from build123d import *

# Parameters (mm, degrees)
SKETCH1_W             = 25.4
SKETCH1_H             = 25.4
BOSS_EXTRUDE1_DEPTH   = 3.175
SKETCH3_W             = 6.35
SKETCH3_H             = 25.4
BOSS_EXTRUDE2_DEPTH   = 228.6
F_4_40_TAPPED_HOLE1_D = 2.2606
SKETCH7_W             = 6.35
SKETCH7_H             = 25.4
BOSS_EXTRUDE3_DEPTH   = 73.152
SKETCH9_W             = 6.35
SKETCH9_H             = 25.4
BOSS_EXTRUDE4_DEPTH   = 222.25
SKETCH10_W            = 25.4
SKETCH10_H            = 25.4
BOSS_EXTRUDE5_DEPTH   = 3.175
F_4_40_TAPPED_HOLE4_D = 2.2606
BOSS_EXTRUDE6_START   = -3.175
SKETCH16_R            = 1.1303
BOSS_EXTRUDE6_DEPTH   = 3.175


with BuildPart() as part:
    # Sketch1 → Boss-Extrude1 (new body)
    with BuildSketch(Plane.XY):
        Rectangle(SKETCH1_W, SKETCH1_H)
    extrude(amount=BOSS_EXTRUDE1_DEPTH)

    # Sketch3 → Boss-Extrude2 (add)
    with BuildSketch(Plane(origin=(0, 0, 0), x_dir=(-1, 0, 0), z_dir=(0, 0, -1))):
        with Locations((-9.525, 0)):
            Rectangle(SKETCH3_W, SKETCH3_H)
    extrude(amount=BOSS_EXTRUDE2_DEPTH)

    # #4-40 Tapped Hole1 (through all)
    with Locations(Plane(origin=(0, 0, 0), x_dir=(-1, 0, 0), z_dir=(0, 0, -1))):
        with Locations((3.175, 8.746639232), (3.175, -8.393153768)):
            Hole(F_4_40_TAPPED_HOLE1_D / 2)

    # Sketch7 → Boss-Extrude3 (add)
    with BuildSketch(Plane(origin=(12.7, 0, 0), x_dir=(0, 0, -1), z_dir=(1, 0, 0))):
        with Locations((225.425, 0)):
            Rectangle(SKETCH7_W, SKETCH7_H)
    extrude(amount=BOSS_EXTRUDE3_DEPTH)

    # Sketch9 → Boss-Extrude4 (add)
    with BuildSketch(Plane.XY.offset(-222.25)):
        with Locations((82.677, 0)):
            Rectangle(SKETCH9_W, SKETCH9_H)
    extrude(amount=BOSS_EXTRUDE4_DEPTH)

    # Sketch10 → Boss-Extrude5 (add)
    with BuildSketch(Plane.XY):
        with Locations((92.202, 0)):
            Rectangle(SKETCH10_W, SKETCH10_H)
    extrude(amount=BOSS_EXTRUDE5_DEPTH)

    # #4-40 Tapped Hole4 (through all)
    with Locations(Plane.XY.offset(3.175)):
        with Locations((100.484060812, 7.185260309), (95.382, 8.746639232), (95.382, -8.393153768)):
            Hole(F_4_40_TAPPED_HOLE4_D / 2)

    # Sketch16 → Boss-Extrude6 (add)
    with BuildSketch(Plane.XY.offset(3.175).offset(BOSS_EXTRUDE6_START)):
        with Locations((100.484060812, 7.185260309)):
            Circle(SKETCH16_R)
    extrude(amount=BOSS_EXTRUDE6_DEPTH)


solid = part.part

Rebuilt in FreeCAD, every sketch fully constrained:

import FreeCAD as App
import Part
import Sketcher
Q = App.Units.Quantity

doc = App.newDocument("Part")
body = doc.addObject("PartDesign::Body", "Body")

sketch1 = doc.addObject("Sketcher::SketchObject", "Sketch")
body.addObject(sketch1)
sketch1.AttachmentSupport = (doc.XY_Plane, [""])
sketch1.MapMode = "FlatFace"
sketch1.addGeometry([
    Part.LineSegment(App.Vector(-13, 13, 0), App.Vector(-13, -13, 0)),
    Part.LineSegment(App.Vector(-13, -13, 0), App.Vector(13, -13, 0)),
    Part.LineSegment(App.Vector(13, -13, 0), App.Vector(13, 13, 0)),
    Part.LineSegment(App.Vector(13, 13, 0), App.Vector(-13, 13, 0)),
], False)
sketch1.addConstraint([
    Sketcher.Constraint("Coincident", 0, 2, 1, 1),
    Sketcher.Constraint("Coincident", 1, 2, 2, 1),
    Sketcher.Constraint("Coincident", 2, 2, 3, 1),
    Sketcher.Constraint("Coincident", 3, 2, 0, 1),
    Sketcher.Constraint("Vertical", 0),
    Sketcher.Constraint("Horizontal", 1),
    Sketcher.Constraint("Vertical", 2),
    Sketcher.Constraint("Horizontal", 3),
    Sketcher.Constraint("Symmetric", 0, 2, 2, 2, -1, 1),
    Sketcher.Constraint("Equal", 3, 0),
    Sketcher.Constraint("DistanceX", 1, 1, 1, 2, Q("1 in")),
])
pad1 = doc.addObject("PartDesign::Pad", "Pad")
body.addObject(pad1)
pad1.Profile = sketch1
pad1.Length = Q("0.125 in")

sketch2 = doc.addObject("Sketcher::SketchObject", "Sketch001")
body.addObject(sketch2)
sketch2.AttachmentSupport = (doc.XY_Plane, [""])
sketch2.MapMode = "FlatFace"
sketch2.addGeometry([
    Part.LineSegment(App.Vector(13, 13, 0), App.Vector(13, -13, 0)),
    Part.LineSegment(App.Vector(13, -13, 0), App.Vector(6, -13, 0)),
    Part.LineSegment(App.Vector(6, -13, 0), App.Vector(6, 13, 0)),
    Part.LineSegment(App.Vector(6, 13, 0), App.Vector(13, 13, 0)),
], False)
sketch2.addConstraint([
    Sketcher.Constraint("Coincident", 0, 2, 1, 1),
    Sketcher.Constraint("Coincident", 1, 2, 2, 1),
    Sketcher.Constraint("Coincident", 2, 2, 3, 1),
    Sketcher.Constraint("Coincident", 3, 2, 0, 1),
    Sketcher.Constraint("Vertical", 0),
    Sketcher.Constraint("Horizontal", 1),
    Sketcher.Constraint("Vertical", 2),
    Sketcher.Constraint("Horizontal", 3),
    Sketcher.Constraint("DistanceY", 0, 2, 0, 1, Q("1 in")),
    Sketcher.Constraint("DistanceX", 1, 2, 1, 1, Q("0.25 in")),
    Sketcher.Constraint("DistanceX", -1, 1, 0, 2, Q("0.5 in")),
    Sketcher.Constraint("DistanceY", 0, 2, -1, 1, Q("0.5 in")),
])
pad2 = doc.addObject("PartDesign::Pad", "Pad001")
body.addObject(pad2)
pad2.Profile = sketch2
pad2.Length = Q("9 in")
pad2.Reversed = True

sketch3 = doc.addObject("Sketcher::SketchObject", "Sketch002")
body.addObject(sketch3)
sketch3.AttachmentSupport = (doc.XY_Plane, [""])
sketch3.MapMode = "FlatFace"
sketch3.addGeometry([
    Part.Circle(App.Vector(-3.2, 8.7, 0), App.Vector(0, 0, 1), 1.1),
    Part.Circle(App.Vector(-3.2, -8.4, 0), App.Vector(0, 0, 1), 1.1),
], False)
sketch3.addConstraint([
    Sketcher.Constraint("Equal", 0, 1),
    Sketcher.Constraint("Vertical", 0, 3, 1, 3),
    Sketcher.Constraint("Diameter", 0, Q("0.089 in")),
    Sketcher.Constraint("DistanceX", 0, 3, -1, 1, Q("0.125 in")),
    Sketcher.Constraint("DistanceY", -1, 1, 0, 3, 8.746639),
    Sketcher.Constraint("DistanceY", 1, 3, -1, 1, 8.393154),
])
doc.recompute()
hole = doc.addObject("PartDesign::Hole", "Hole")
body.addObject(hole)
hole.Profile = sketch3
hole.ThreadType = "None"
hole.Diameter = Q("0.089 in")
hole.DepthType = "ThroughAll"
hole.Reversed = True

sketch4 = doc.addObject("Sketcher::SketchObject", "Sketch003")
body.addObject(sketch4)
sketch4.AttachmentSupport = (doc.YZ_Plane, [""])
sketch4.MapMode = "FlatFace"
sketch4.AttachmentOffset = App.Placement(App.Vector(0, 0, 0.5 * 25.4), App.Rotation())
sketch4.addGeometry([
    Part.LineSegment(App.Vector(13, -222, 0), App.Vector(-13, -222, 0)),
    Part.LineSegment(App.Vector(-13, -222, 0), App.Vector(-13, -229, 0)),
    Part.LineSegment(App.Vector(-13, -229, 0), App.Vector(13, -229, 0)),
    Part.LineSegment(App.Vector(13, -229, 0), App.Vector(13, -222, 0)),
], False)
sketch4.addConstraint([
    Sketcher.Constraint("Coincident", 0, 2, 1, 1),
    Sketcher.Constraint("Coincident", 1, 2, 2, 1),
    Sketcher.Constraint("Coincident", 2, 2, 3, 1),
    Sketcher.Constraint("Coincident", 3, 2, 0, 1),
    Sketcher.Constraint("Horizontal", 0),
    Sketcher.Constraint("Vertical", 1),
    Sketcher.Constraint("Horizontal", 2),
    Sketcher.Constraint("Vertical", 3),
    Sketcher.Constraint("DistanceX", 0, 2, 0, 1, Q("1 in")),
    Sketcher.Constraint("DistanceY", 1, 2, -1, 1, Q("9 in")),
    Sketcher.Constraint("DistanceY", 1, 2, 1, 1, Q("0.25 in")),
    Sketcher.Constraint("DistanceX", 0, 2, -1, 1, Q("0.5 in")),
])
pad3 = doc.addObject("PartDesign::Pad", "Pad002")
body.addObject(pad3)
pad3.Profile = sketch4
pad3.Length = Q("2.88 in")

sketch5 = doc.addObject("Sketcher::SketchObject", "Sketch004")
body.addObject(sketch5)
sketch5.AttachmentSupport = (doc.XY_Plane, [""])
sketch5.MapMode = "FlatFace"
sketch5.AttachmentOffset = App.Placement(App.Vector(0, 0, -8.75 * 25.4), App.Rotation())
sketch5.addGeometry([
    Part.LineSegment(App.Vector(80, 13, 0), App.Vector(80, -13, 0)),
    Part.LineSegment(App.Vector(80, -13, 0), App.Vector(86, -13, 0)),
    Part.LineSegment(App.Vector(86, -13, 0), App.Vector(86, 13, 0)),
    Part.LineSegment(App.Vector(86, 13, 0), App.Vector(80, 13, 0)),
], False)
sketch5.addConstraint([
    Sketcher.Constraint("Coincident", 0, 2, 1, 1),
    Sketcher.Constraint("Coincident", 1, 2, 2, 1),
    Sketcher.Constraint("Coincident", 2, 2, 3, 1),
    Sketcher.Constraint("Coincident", 3, 2, 0, 1),
    Sketcher.Constraint("Vertical", 0),
    Sketcher.Constraint("Horizontal", 1),
    Sketcher.Constraint("Vertical", 2),
    Sketcher.Constraint("Horizontal", 3),
    Sketcher.Constraint("DistanceY", 0, 2, 0, 1, Q("1 in")),
    Sketcher.Constraint("DistanceX", 1, 1, 1, 2, Q("0.25 in")),
    Sketcher.Constraint("DistanceY", 0, 2, -1, 1, Q("0.5 in")),
    Sketcher.Constraint("DistanceX", -1, 1, 0, 2, Q("3.13 in")),
])
pad4 = doc.addObject("PartDesign::Pad", "Pad003")
body.addObject(pad4)
pad4.Profile = sketch5
pad4.Length = Q("8.75 in")

sketch6 = doc.addObject("Sketcher::SketchObject", "Sketch005")
body.addObject(sketch6)
sketch6.AttachmentSupport = (doc.XY_Plane, [""])
sketch6.MapMode = "FlatFace"
sketch6.addGeometry([
    Part.LineSegment(App.Vector(80, 13, 0), App.Vector(80, -13, 0)),
    Part.LineSegment(App.Vector(80, -13, 0), App.Vector(105, -13, 0)),
    Part.LineSegment(App.Vector(105, -13, 0), App.Vector(105, 13, 0)),
    Part.LineSegment(App.Vector(105, 13, 0), App.Vector(80, 13, 0)),
], False)
sketch6.addConstraint([
    Sketcher.Constraint("Coincident", 0, 2, 1, 1),
    Sketcher.Constraint("Coincident", 1, 2, 2, 1),
    Sketcher.Constraint("Coincident", 2, 2, 3, 1),
    Sketcher.Constraint("Coincident", 3, 2, 0, 1),
    Sketcher.Constraint("Vertical", 0),
    Sketcher.Constraint("Horizontal", 1),
    Sketcher.Constraint("Vertical", 2),
    Sketcher.Constraint("Horizontal", 3),
    Sketcher.Constraint("Equal", 3, 0),
    Sketcher.Constraint("DistanceX", 1, 1, 1, 2, Q("1 in")),
    Sketcher.Constraint("DistanceY", 0, 2, -1, 1, Q("0.5 in")),
    Sketcher.Constraint("DistanceX", -1, 1, 0, 2, Q("3.13 in")),
])
pad5 = doc.addObject("PartDesign::Pad", "Pad004")
body.addObject(pad5)
pad5.Profile = sketch6
pad5.Length = Q("0.125 in")

sketch7 = doc.addObject("Sketcher::SketchObject", "Sketch006")
body.addObject(sketch7)
sketch7.AttachmentSupport = (doc.XY_Plane, [""])
sketch7.MapMode = "FlatFace"
sketch7.AttachmentOffset = App.Placement(App.Vector(0, 0, 0.125 * 25.4), App.Rotation())
sketch7.addGeometry([
    Part.Circle(App.Vector(100.5, 7.2, 0), App.Vector(0, 0, 1), 1.1),
    Part.Circle(App.Vector(95.4, 8.7, 0), App.Vector(0, 0, 1), 1.1),
    Part.Circle(App.Vector(95.4, -8.4, 0), App.Vector(0, 0, 1), 1.1),
], False)
sketch7.addConstraint([
    Sketcher.Constraint("Equal", 0, 1),
    Sketcher.Constraint("Equal", 1, 2),
    Sketcher.Constraint("Vertical", 1, 3, 2, 3),
    Sketcher.Constraint("Diameter", 0, Q("0.089 in")),
    Sketcher.Constraint("DistanceX", -1, 1, 1, 3, 95.382),
    Sketcher.Constraint("DistanceX", -1, 1, 0, 3, 100.484061),
    Sketcher.Constraint("DistanceY", -1, 1, 0, 3, 7.18526),
    Sketcher.Constraint("DistanceY", -1, 1, 1, 3, 8.746639),
    Sketcher.Constraint("DistanceY", 2, 3, -1, 1, 8.393154),
])
doc.recompute()
hole2 = doc.addObject("PartDesign::Hole", "Hole001")
body.addObject(hole2)
hole2.Profile = sketch7
hole2.ThreadType = "None"
hole2.Diameter = Q("0.089 in")
hole2.DepthType = "ThroughAll"

sketch8 = doc.addObject("Sketcher::SketchObject", "Sketch007")
body.addObject(sketch8)
sketch8.AttachmentSupport = (doc.XY_Plane, [""])
sketch8.MapMode = "FlatFace"
sketch8.addGeometry(Part.Circle(App.Vector(100.5, 7.2, 0), App.Vector(0, 0, 1), 1.1), False)
sketch8.addConstraint([
    Sketcher.Constraint("Diameter", 0, Q("0.089 in")),
    Sketcher.Constraint("DistanceX", -1, 1, 0, 3, 100.484061),
    Sketcher.Constraint("DistanceY", -1, 1, 0, 3, 7.18526),
])
pad6 = doc.addObject("PartDesign::Pad", "Pad005")
body.addObject(pad6)
pad6.Profile = sketch8
pad6.Length = Q("0.125 in")

doc.recompute()
